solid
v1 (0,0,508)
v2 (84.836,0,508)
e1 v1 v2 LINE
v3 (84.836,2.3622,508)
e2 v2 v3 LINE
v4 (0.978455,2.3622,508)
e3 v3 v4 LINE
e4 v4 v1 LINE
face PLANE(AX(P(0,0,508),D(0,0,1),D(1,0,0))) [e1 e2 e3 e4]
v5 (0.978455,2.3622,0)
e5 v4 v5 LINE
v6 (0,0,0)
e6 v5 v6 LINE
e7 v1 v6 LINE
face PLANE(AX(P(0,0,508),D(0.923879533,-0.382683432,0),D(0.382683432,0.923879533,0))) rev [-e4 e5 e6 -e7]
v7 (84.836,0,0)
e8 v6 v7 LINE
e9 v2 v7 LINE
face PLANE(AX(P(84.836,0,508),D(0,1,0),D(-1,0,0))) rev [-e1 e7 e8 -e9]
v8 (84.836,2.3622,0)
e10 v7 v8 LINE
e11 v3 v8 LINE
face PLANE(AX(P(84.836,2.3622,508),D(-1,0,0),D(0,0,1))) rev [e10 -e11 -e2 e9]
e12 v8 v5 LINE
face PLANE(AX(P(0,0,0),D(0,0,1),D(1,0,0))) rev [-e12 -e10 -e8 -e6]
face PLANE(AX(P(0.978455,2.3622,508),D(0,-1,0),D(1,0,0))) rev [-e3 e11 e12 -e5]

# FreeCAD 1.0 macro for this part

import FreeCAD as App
import Part
import Sketcher
from FreeCAD import Vector
Q = App.Units.Quantity


def add_polygon(sketch, points):
    """Adds a closed chain of lines whose ends are joined by coincident constraints."""
    first, n = sketch.GeometryCount, len(points)
    for a, b in zip(points, points[1:] + points[:1]):
        sketch.addGeometry(Part.LineSegment(App.Vector(*a, 0), App.Vector(*b, 0)), False)
    for i in range(n):
        sketch.addConstraint(Sketcher.Constraint("Coincident", first + i, 2, first + (i + 1) % n, 1))

doc = App.newDocument("Part")
body = doc.addObject("PartDesign::Body", "Body")

# Sketch on XY plane
sketch1 = body.newObject("Sketcher::SketchObject", "Sketch")
sketch1.AttachmentSupport = (doc.getObject("XY_Plane"), [""])
sketch1.MapMode = "FlatFace"
add_polygon(sketch1, [(1, 2.4), (0, 0), (84.8, 0), (84.8, 2.4)])  # lines 0-3
sketch1.addConstraint([
    Sketcher.Constraint("Horizontal", 1),
    Sketcher.Constraint("Vertical", 2),
    Sketcher.Constraint("Horizontal", 3),
    Sketcher.Constraint("Coincident", 0, 2, -1, 1),
    Sketcher.Constraint("DistanceX", 1, 1, 1, 2, Q("3.34 in")),
    Sketcher.Constraint("Angle", 0, Q("-112.5 deg")),
    Sketcher.Constraint("DistanceY", 2, 1, 2, 2, Q("0.093 in")),
])
pad1 = body.newObject("PartDesign::Pad", "Pad")
pad1.Profile = sketch1
pad1.Length = Q("20 in")

doc.recompute()
